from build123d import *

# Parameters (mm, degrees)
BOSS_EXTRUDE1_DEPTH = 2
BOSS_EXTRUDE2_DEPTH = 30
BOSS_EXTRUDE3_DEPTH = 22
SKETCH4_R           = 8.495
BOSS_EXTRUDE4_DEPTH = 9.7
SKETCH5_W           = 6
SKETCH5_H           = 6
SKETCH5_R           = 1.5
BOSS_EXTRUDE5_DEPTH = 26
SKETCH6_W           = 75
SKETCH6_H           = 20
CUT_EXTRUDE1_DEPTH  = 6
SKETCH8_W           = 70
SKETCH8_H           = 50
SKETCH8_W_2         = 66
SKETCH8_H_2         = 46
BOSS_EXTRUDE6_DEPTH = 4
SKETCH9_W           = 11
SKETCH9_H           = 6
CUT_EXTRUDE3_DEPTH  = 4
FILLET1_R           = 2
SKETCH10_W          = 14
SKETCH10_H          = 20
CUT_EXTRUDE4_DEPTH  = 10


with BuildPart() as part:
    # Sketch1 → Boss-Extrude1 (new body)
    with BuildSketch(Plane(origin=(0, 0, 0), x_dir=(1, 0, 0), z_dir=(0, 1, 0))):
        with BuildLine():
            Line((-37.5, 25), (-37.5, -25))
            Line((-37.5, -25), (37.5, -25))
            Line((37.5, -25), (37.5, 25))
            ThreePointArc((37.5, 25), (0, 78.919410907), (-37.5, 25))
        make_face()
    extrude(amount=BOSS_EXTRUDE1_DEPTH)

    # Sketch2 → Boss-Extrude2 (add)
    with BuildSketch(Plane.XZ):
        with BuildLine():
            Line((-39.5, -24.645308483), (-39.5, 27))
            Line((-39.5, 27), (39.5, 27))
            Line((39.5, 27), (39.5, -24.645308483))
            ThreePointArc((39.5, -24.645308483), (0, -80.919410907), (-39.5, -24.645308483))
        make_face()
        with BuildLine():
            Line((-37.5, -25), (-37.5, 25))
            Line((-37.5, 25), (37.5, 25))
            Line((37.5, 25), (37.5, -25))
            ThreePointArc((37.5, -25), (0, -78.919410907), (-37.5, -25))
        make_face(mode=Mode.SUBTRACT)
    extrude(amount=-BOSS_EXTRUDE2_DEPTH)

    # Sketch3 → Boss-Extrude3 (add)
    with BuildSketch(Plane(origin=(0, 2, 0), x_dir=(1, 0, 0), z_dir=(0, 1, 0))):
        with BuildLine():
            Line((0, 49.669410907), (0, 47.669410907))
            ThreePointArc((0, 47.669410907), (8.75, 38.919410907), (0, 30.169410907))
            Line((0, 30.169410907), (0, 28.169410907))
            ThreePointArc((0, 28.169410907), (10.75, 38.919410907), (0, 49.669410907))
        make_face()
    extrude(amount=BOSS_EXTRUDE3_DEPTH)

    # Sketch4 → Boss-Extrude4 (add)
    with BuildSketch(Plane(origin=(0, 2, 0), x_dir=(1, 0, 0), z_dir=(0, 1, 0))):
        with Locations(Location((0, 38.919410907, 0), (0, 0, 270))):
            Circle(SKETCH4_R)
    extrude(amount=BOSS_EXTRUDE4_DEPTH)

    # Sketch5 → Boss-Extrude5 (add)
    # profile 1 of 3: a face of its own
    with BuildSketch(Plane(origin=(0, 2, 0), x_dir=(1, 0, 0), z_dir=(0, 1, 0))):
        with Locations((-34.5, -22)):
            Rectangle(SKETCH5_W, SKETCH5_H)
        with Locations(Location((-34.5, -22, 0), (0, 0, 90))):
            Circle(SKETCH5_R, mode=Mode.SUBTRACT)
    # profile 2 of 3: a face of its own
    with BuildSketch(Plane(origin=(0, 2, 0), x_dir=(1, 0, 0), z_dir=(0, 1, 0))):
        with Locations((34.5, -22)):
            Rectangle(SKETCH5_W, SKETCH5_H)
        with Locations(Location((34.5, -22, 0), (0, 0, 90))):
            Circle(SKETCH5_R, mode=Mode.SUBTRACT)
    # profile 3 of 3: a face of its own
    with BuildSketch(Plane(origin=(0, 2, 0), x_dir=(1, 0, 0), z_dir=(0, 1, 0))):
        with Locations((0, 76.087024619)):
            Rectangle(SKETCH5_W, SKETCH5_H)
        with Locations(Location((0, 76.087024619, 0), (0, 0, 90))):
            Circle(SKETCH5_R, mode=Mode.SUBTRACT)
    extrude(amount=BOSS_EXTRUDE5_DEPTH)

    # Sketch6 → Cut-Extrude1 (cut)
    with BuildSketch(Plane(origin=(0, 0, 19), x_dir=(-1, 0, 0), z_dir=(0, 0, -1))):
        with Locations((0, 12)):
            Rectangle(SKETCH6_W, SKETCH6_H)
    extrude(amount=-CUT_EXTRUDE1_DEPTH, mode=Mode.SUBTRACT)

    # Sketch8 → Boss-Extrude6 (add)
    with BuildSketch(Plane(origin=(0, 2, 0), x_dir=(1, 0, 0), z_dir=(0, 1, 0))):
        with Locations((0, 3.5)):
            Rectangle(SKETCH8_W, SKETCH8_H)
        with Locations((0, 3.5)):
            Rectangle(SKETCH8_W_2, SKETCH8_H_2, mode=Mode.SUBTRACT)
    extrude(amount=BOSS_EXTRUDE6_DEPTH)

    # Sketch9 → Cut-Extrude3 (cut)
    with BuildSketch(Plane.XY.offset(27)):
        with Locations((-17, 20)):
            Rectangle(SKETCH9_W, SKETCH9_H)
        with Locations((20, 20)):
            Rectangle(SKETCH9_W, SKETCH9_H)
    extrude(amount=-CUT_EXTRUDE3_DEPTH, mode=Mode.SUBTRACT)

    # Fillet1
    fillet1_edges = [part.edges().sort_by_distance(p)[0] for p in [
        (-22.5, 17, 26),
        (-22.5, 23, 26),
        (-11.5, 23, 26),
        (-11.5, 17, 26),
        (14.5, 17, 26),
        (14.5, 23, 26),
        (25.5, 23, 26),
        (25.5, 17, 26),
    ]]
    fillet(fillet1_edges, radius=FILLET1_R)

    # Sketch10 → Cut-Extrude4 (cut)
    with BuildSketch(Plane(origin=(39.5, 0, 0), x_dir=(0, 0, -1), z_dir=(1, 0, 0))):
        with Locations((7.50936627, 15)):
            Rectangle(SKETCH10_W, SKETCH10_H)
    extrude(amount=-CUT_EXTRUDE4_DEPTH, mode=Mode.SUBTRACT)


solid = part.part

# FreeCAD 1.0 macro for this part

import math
import FreeCAD as App
import Part
import Sketcher
Q = App.Units.Quantity


def edges_at(feature, points):
    """Names of the edges that pass closest to the given points."""
    edges = feature.Shape.Edges
    near = lambda p: min(range(len(edges)), key=lambda i: edges[i].distToShape(Part.Vertex(*p))[0])
    return sorted({f"Edge{near(p) + 1}" for p in points})

doc = App.newDocument("Part")
body = doc.addObject("PartDesign::Body", "Body")

# Sketch on XZ plane
sketch1 = doc.addObject("Sketcher::SketchObject", "Sketch")
body.addObject(sketch1)
sketch1.AttachmentSupport = (doc.XZ_Plane, [""])
sketch1.MapMode = "FlatFace"
sketch1.addGeometry(Part.LineSegment(App.Vector(-38, -25, 0), App.Vector(-38, 25, 0)), False)
sketch1.addGeometry(Part.LineSegment(App.Vector(-38, 25, 0), App.Vector(38, 25, 0)), False)
sketch1.addGeometry(Part.LineSegment(App.Vector(38, 25, 0), App.Vector(38, -25, 0)), False)
sketch1.addGeometry(Part.ArcOfCircle(Part.Circle(App.Vector(0, -39, 0), App.Vector(0, 0, 1), 40), math.radians(160), math.radians(380)), False)
sketch1.addConstraint(Sketcher.Constraint("Coincident", 0, 2, 1, 1))
sketch1.addConstraint(Sketcher.Constraint("Coincident", 1, 2, 2, 1))
sketch1.addConstraint(Sketcher.Constraint("Coincident", 2, 2, 3, 2))
sketch1.addConstraint(Sketcher.Constraint("Coincident", 3, 1, 0, 1))
sketch1.addConstraint(Sketcher.Constraint("Vertical", 0))
sketch1.addConstraint(Sketcher.Constraint("Horizontal", 1))
sketch1.addConstraint(Sketcher.Constraint("Vertical", 2))
sketch1.addConstraint(Sketcher.Constraint("Symmetric", 0, 2, 2, 2, -1, 1))
sketch1.addConstraint(Sketcher.Constraint("PointOnObject", 3, 3, -2))
sketch1.addConstraint(Sketcher.Constraint("Radius", 3, Q("40 mm")))
sketch1.addConstraint(Sketcher.Constraint("DistanceX", 1, 1, 1, 2, Q("75 mm")))
sketch1.addConstraint(Sketcher.Constraint("DistanceY", 0, 1, 0, 2, Q("50 mm")))
pad1 = doc.addObject("PartDesign::Pad", "Pad")
body.addObject(pad1)
pad1.Profile = sketch1
pad1.Length = 2
pad1.Reversed = True

# Sketch on XZ plane
sketch2 = doc.addObject("Sketcher::SketchObject", "Sketch001")
body.addObject(sketch2)
sketch2.AttachmentSupport = (doc.XZ_Plane, [""])
sketch2.MapMode = "FlatFace"
sketch2.addGeometry(Part.LineSegment(App.Vector(-40, 27, 0), App.Vector(-40, -25, 0)), False)
sketch2.addGeometry(Part.ArcOfCircle(Part.Circle(App.Vector(0, -39, 0), App.Vector(0, 0, 1), 42), math.radians(160), math.radians(380)), False)
sketch2.addGeometry(Part.LineSegment(App.Vector(40, -25, 0), App.Vector(40, 27, 0)), False)
sketch2.addGeometry(Part.LineSegment(App.Vector(40, 27, 0), App.Vector(-40, 27, 0)), False)
sketch2.addGeometry(Part.LineSegment(App.Vector(-38, -25, 0), App.Vector(-38, 25, 0)), False)
sketch2.addGeometry(Part.LineSegment(App.Vector(-38, 25, 0), App.Vector(38, 25, 0)), False)
sketch2.addGeometry(Part.LineSegment(App.Vector(38, 25, 0), App.Vector(38, -25, 0)), False)
sketch2.addGeometry(Part.ArcOfCircle(Part.Circle(App.Vector(0, -39, 0), App.Vector(0, 0, 1), 40), math.radians(160), math.radians(380)), False)
sketch2.addConstraint(Sketcher.Constraint("Coincident", 0, 2, 1, 1))
sketch2.addConstraint(Sketcher.Constraint("Coincident", 1, 2, 2, 1))
sketch2.addConstraint(Sketcher.Constraint("Coincident", 2, 2, 3, 1))
sketch2.addConstraint(Sketcher.Constraint("Coincident", 3, 2, 0, 1))
sketch2.addConstraint(Sketcher.Constraint("Coincident", 4, 2, 5, 1))
sketch2.addConstraint(Sketcher.Constraint("Coincident", 5, 2, 6, 1))
sketch2.addConstraint(Sketcher.Constraint("Coincident", 6, 2, 7, 2))
sketch2.addConstraint(Sketcher.Constraint("Coincident", 7, 1, 4, 1))
sketch2.addConstraint(Sketcher.Constraint("Vertical", 0))
sketch2.addConstraint(Sketcher.Constraint("Vertical", 2))
sketch2.addConstraint(Sketcher.Constraint("Horizontal", 3))
sketch2.addConstraint(Sketcher.Constraint("Vertical", 4))
sketch2.addConstraint(Sketcher.Constraint("Horizontal", 5))
sketch2.addConstraint(Sketcher.Constraint("Vertical", 6))
sketch2.addConstraint(Sketcher.Constraint("Coincident", 7, 3, 1, 3))
sketch2.addConstraint(Sketcher.Constraint("Symmetric", 4, 2, 6, 2, -1, 1))
sketch2.addConstraint(Sketcher.Constraint("Symmetric", 0, 2, 1, 2, -2))
sketch2.addConstraint(Sketcher.Constraint("Radius", 1, Q("42 mm")))
sketch2.addConstraint(Sketcher.Constraint("Radius", 7, Q("40 mm")))
sketch2.addConstraint(Sketcher.Constraint("DistanceX", 3, 2, 3, 1, Q("79 mm")))
sketch2.addConstraint(Sketcher.Constraint("DistanceX", 5, 1, 5, 2, Q("75 mm")))
sketch2.addConstraint(Sketcher.Constraint("DistanceY", 4, 1, 4, 2, Q("50 mm")))
sketch2.addConstraint(Sketcher.Constraint("DistanceY", -1, 1, 2, 2, Q("27 mm")))
pad2 = doc.addObject("PartDesign::Pad", "Pad001")
body.addObject(pad2)
pad2.Profile = sketch2
pad2.Length = 30
pad2.Reversed = True

# Sketch on XZ plane
sketch3 = doc.addObject("Sketcher::SketchObject", "Sketch002")
body.addObject(sketch3)
sketch3.AttachmentSupport = (doc.XZ_Plane, [""])
sketch3.MapMode = "FlatFace"
sketch3.AttachmentOffset = App.Placement(App.Vector(0, 0, -2), App.Rotation())
sketch3.addGeometry(Part.LineSegment(App.Vector(0, -49.7, 0), App.Vector(0, -47.7, 0)), False)
sketch3.addGeometry(Part.ArcOfCircle(Part.Circle(App.Vector(0, -38.9, 0), App.Vector(0, 0, 1), 8.8), math.radians(-90), math.radians(90)), False)
sketch3.addGeometry(Part.LineSegment(App.Vector(0, -30.2, 0), App.Vector(0, -28.2, 0)), False)
sketch3.addGeometry(Part.ArcOfCircle(Part.Circle(App.Vector(0, -38.9, 0), App.Vector(0, 0, 1), 10.8), math.radians(-90), math.radians(90)), False)
sketch3.addConstraint(Sketcher.Constraint("Coincident", 0, 2, 1, 1))
sketch3.addConstraint(Sketcher.Constraint("Coincident", 1, 2, 2, 1))
sketch3.addConstraint(Sketcher.Constraint("Coincident", 2, 2, 3, 2))
sketch3.addConstraint(Sketcher.Constraint("Coincident", 3, 1, 0, 1))
sketch3.addConstraint(Sketcher.Constraint("Vertical", 0))
sketch3.addConstraint(Sketcher.Constraint("Vertical", 2))
sketch3.addConstraint(Sketcher.Constraint("Coincident", 3, 3, 1, 3))
sketch3.addConstraint(Sketcher.Constraint("PointOnObject", 1, 3, -2))
sketch3.addConstraint(Sketcher.Constraint("PointOnObject", 0, 2, -2))
sketch3.addConstraint(Sketcher.Constraint("PointOnObject", 1, 2, -2))
sketch3.addConstraint(Sketcher.Constraint("DistanceY", 0, 1, 0, 2, Q("2 mm")))
sketch3.addConstraint(Sketcher.Constraint("Radius", 1, Q("8.75 mm")))
sketch3.addConstraint(Sketcher.Constraint("DistanceY", 1, 3, -1, 1, Q("38.919411 mm")))
pad3 = doc.addObject("PartDesign::Pad", "Pad002")
body.addObject(pad3)
pad3.Profile = sketch3
pad3.Length = 22
pad3.Reversed = True

# Sketch on XZ plane
sketch4 = doc.addObject("Sketcher::SketchObject", "Sketch003")
body.addObject(sketch4)
sketch4.AttachmentSupport = (doc.XZ_Plane, [""])
sketch4.MapMode = "FlatFace"
sketch4.AttachmentOffset = App.Placement(App.Vector(0, 0, -2), App.Rotation())
sketch4.addGeometry(Part.Circle(App.Vector(0, -39, 0), App.Vector(0, 0, 1), 8), False)
sketch4.addConstraint(Sketcher.Constraint("PointOnObject", 0, 3, -2))
sketch4.addConstraint(Sketcher.Constraint("Diameter", 0, Q("16.99 mm")))
sketch4.addConstraint(Sketcher.Constraint("DistanceY", 0, 3, -1, 1, Q("38.919411 mm")))
pad4 = doc.addObject("PartDesign::Pad", "Pad003")
body.addObject(pad4)
pad4.Profile = sketch4
pad4.Length = 9.7
pad4.Reversed = True

# Sketch on XZ plane
sketch5 = doc.addObject("Sketcher::SketchObject", "Sketch004")
body.addObject(sketch5)
sketch5.AttachmentSupport = (doc.XZ_Plane, [""])
sketch5.MapMode = "FlatFace"
sketch5.AttachmentOffset = App.Placement(App.Vector(0, 0, -2), App.Rotation())
sketch5.addGeometry(Part.LineSegment(App.Vector(-37.5, 19, 0), App.Vector(-37.5, 25, 0)), False)
sketch5.addGeometry(Part.LineSegment(App.Vector(-37.5, 25, 0), App.Vector(-31.5, 25, 0)), False)
sketch5.addGeometry(Part.LineSegment(App.Vector(-31.5, 25, 0), App.Vector(-31.5, 19, 0)), False)
sketch5.addGeometry(Part.LineSegment(App.Vector(-31.5, 19, 0), App.Vector(-37.5, 19, 0)), False)
sketch5.addGeometry(Part.Circle(App.Vector(-34.5, 22, 0), App.Vector(0, 0, 1), 1.5), False)
sketch5.addGeometry(Part.LineSegment(App.Vector(31.5, 19, 0), App.Vector(31.5, 25, 0)), False)
sketch5.addGeometry(Part.LineSegment(App.Vector(31.5, 25, 0), App.Vector(37.5, 25, 0)), False)
sketch5.addGeometry(Part.LineSegment(App.Vector(37.5, 25, 0), App.Vector(37.5, 19, 0)), False)
sketch5.addGeometry(Part.LineSegment(App.Vector(37.5, 19, 0), App.Vector(31.5, 19, 0)), False)
sketch5.addGeometry(Part.Circle(App.Vector(34.5, 22, 0), App.Vector(0, 0, 1), 1.5), False)
sketch5.addGeometry(Part.LineSegment(App.Vector(-3, -79.1, 0), App.Vector(-3, -73.1, 0)), False)
sketch5.addGeometry(Part.LineSegment(App.Vector(-3, -73.1, 0), App.Vector(3, -73.1, 0)), False)
sketch5.addGeometry(Part.LineSegment(App.Vector(3, -73.1, 0), App.Vector(3, -79.1, 0)), False)
sketch5.addGeometry(Part.LineSegment(App.Vector(3, -79.1, 0), App.Vector(-3, -79.1, 0)), False)
sketch5.addGeometry(Part.Circle(App.Vector(0, -76.1, 0), App.Vector(0, 0, 1), 1.5), False)
sketch5.addConstraint(Sketcher.Constraint("Coincident", 0, 2, 1, 1))
sketch5.addConstraint(Sketcher.Constraint("Coincident", 1, 2, 2, 1))
sketch5.addConstraint(Sketcher.Constraint("Coincident", 2, 2, 3, 1))
sketch5.addConstraint(Sketcher.Constraint("Coincident", 3, 2, 0, 1))
sketch5.addConstraint(Sketcher.Constraint("Coincident", 5, 2, 6, 1))
sketch5.addConstraint(Sketcher.Constraint("Coincident", 6, 2, 7, 1))
sketch5.addConstraint(Sketcher.Constraint("Coincident", 7, 2, 8, 1))
sketch5.addConstraint(Sketcher.Constraint("Coincident", 8, 2, 5, 1))
sketch5.addConstraint(Sketcher.Constraint("Coincident", 10, 2, 11, 1))
sketch5.addConstraint(Sketcher.Constraint("Coincident", 11, 2, 12, 1))
sketch5.addConstraint(Sketcher.Constraint("Coincident", 12, 2, 13, 1))
sketch5.addConstraint(Sketcher.Constraint("Coincident", 13, 2, 10, 1))
sketch5.addConstraint(Sketcher.Constraint("Vertical", 0))
sketch5.addConstraint(Sketcher.Constraint("Horizontal", 1))
sketch5.addConstraint(Sketcher.Constraint("Vertical", 2))
sketch5.addConstraint(Sketcher.Constraint("Horizontal", 3))
sketch5.addConstraint(Sketcher.Constraint("Vertical", 5))
sketch5.addConstraint(Sketcher.Constraint("Horizontal", 6))
sketch5.addConstraint(Sketcher.Constraint("Vertical", 7))
sketch5.addConstraint(Sketcher.Constraint("Horizontal", 8))
sketch5.addConstraint(Sketcher.Constraint("Vertical", 10))
sketch5.addConstraint(Sketcher.Constraint("Horizontal", 11))
sketch5.addConstraint(Sketcher.Constraint("Vertical", 12))
sketch5.addConstraint(Sketcher.Constraint("Horizontal", 13))
sketch5.addConstraint(Sketcher.Constraint("Equal", 4, 9))
sketch5.addConstraint(Sketcher.Constraint("Equal", 9, 14))
sketch5.addConstraint(Sketcher.Constraint("Symmetric", 4, 3, 9, 3, -2))
sketch5.addConstraint(Sketcher.Constraint("Symmetric", 1, 2, 5, 2, -2))
sketch5.addConstraint(Sketcher.Constraint("Symmetric", 3, 2, 7, 2, -2))
sketch5.addConstraint(Sketcher.Constraint("PointOnObject", 14, 3, -2))
sketch5.addConstraint(Sketcher.Constraint("Equal", 8, 11))
sketch5.addConstraint(Sketcher.Constraint("Equal", 13, 0))
sketch5.addConstraint(Sketcher.Constraint("Equal", 7, 10))
sketch5.addConstraint(Sketcher.Constraint("Diameter", 4, Q("3 mm")))
sketch5.addConstraint(Sketcher.Constraint("DistanceX", 1, 1, 1, 2, Q("6 mm")))
sketch5.addConstraint(Sketcher.Constraint("DistanceY", -1, 1, 4, 3, Q("22 mm")))
sketch5.addConstraint(Sketcher.Constraint("DistanceY", -1, 1, 0, 2, Q("25 mm")))
sketch5.addConstraint(Sketcher.Constraint("DistanceX", 10, 2, -1, 1, Q("3 mm")))
sketch5.addConstraint(Sketcher.Constraint("DistanceX", 4, 3, 9, 3, Q("69 mm")))
sketch5.addConstraint(Sketcher.Constraint("DistanceX", 0, 2, 4, 3, Q("3 mm")))
sketch5.addConstraint(Sketcher.Constraint("DistanceY", 14, 3, 10, 2, Q("3 mm")))
sketch5.addConstraint(Sketcher.Constraint("DistanceY", 14, 3, -1, 1, Q("76.087025 mm")))
pad5 = doc.addObject("PartDesign::Pad", "Pad004")
body.addObject(pad5)
pad5.Profile = sketch5
pad5.Length = 26
pad5.Reversed = True

# Sketch on XY plane
sketch6 = doc.addObject("Sketcher::SketchObject", "Sketch005")
body.addObject(sketch6)
sketch6.AttachmentSupport = (doc.XY_Plane, [""])
sketch6.MapMode = "FlatFace"
sketch6.AttachmentOffset = App.Placement(App.Vector(0, 0, 19), App.Rotation())
sketch6.addGeometry(Part.LineSegment(App.Vector(38, 22, 0), App.Vector(38, 2, 0)), False)
sketch6.addGeometry(Part.LineSegment(App.Vector(38, 2, 0), App.Vector(-38, 2, 0)), False)
sketch6.addGeometry(Part.LineSegment(App.Vector(-38, 2, 0), App.Vector(-38, 22, 0)), False)
sketch6.addGeometry(Part.LineSegment(App.Vector(-38, 22, 0), App.Vector(38, 22, 0)), False)
sketch6.addConstraint(Sketcher.Constraint("Coincident", 0, 2, 1, 1))
sketch6.addConstraint(Sketcher.Constraint("Coincident", 1, 2, 2, 1))
sketch6.addConstraint(Sketcher.Constraint("Coincident", 2, 2, 3, 1))
sketch6.addConstraint(Sketcher.Constraint("Coincident", 3, 2, 0, 1))
sketch6.addConstraint(Sketcher.Constraint("Vertical", 0))
sketch6.addConstraint(Sketcher.Constraint("Horizontal", 1))
sketch6.addConstraint(Sketcher.Constraint("Vertical", 2))
sketch6.addConstraint(Sketcher.Constraint("Horizontal", 3))
sketch6.addConstraint(Sketcher.Constraint("DistanceX", 1, 2, 1, 1, Q("75 mm")))
sketch6.addConstraint(Sketcher.Constraint("DistanceY", 0, 2, 0, 1, Q("20 mm")))
sketch6.addConstraint(Sketcher.Constraint("DistanceY", -1, 1, 0, 2, Q("2 mm")))
sketch6.addConstraint(Sketcher.Constraint("DistanceX", -1, 1, 0, 2, Q("37.5 mm")))
pocket1 = doc.addObject("PartDesign::Pocket", "Pocket")
body.addObject(pocket1)
pocket1.Profile = sketch6
pocket1.Length = 6
pocket1.Reversed = True

# Sketch on XZ plane
sketch7 = doc.addObject("Sketcher::SketchObject", "Sketch006")
body.addObject(sketch7)
sketch7.AttachmentSupport = (doc.XZ_Plane, [""])
sketch7.MapMode = "FlatFace"
sketch7.AttachmentOffset = App.Placement(App.Vector(0, 0, -2), App.Rotation())
sketch7.addGeometry(Part.LineSegment(App.Vector(-35, -28, 0), App.Vector(-35, 22, 0)), False)
sketch7.addGeometry(Part.LineSegment(App.Vector(-35, 22, 0), App.Vector(35, 22, 0)), False)
sketch7.addGeometry(Part.LineSegment(App.Vector(35, 22, 0), App.Vector(35, -28, 0)), False)
sketch7.addGeometry(Part.LineSegment(App.Vector(35, -28, 0), App.Vector(-35, -28, 0)), False)
sketch7.addGeometry(Part.LineSegment(App.Vector(33, 20, 0), App.Vector(-33, 20, 0)), False)
sketch7.addGeometry(Part.LineSegment(App.Vector(-33, 20, 0), App.Vector(-33, -26, 0)), False)
sketch7.addGeometry(Part.LineSegment(App.Vector(-33, -26, 0), App.Vector(33, -26, 0)), False)
sketch7.addGeometry(Part.LineSegment(App.Vector(33, -26, 0), App.Vector(33, 20, 0)), False)
sketch7.addConstraint(Sketcher.Constraint("Coincident", 0, 2, 1, 1))
sketch7.addConstraint(Sketcher.Constraint("Coincident", 1, 2, 2, 1))
sketch7.addConstraint(Sketcher.Constraint("Coincident", 2, 2, 3, 1))
sketch7.addConstraint(Sketcher.Constraint("Coincident", 3, 2, 0, 1))
sketch7.addConstraint(Sketcher.Constraint("Coincident", 4, 2, 5, 1))
sketch7.addConstraint(Sketcher.Constraint("Coincident", 5, 2, 6, 1))
sketch7.addConstraint(Sketcher.Constraint("Coincident", 6, 2, 7, 1))
sketch7.addConstraint(Sketcher.Constraint("Coincident", 7, 2, 4, 1))
sketch7.addConstraint(Sketcher.Constraint("Vertical", 0))
sketch7.addConstraint(Sketcher.Constraint("Horizontal", 1))
sketch7.addConstraint(Sketcher.Constraint("Vertical", 2))
sketch7.addConstraint(Sketcher.Constraint("Horizontal", 3))
sketch7.addConstraint(Sketcher.Constraint("Horizontal", 4))
sketch7.addConstraint(Sketcher.Constraint("Vertical", 5))
sketch7.addConstraint(Sketcher.Constraint("Horizontal", 6))
sketch7.addConstraint(Sketcher.Constraint("Vertical", 7))
sketch7.addConstraint(Sketcher.Constraint("DistanceX", 1, 1, 1, 2, Q("70 mm")))
sketch7.addConstraint(Sketcher.Constraint("DistanceX", 4, 2, 4, 1, Q("66 mm")))
sketch7.addConstraint(Sketcher.Constraint("DistanceY", 0, 1, 0, 2, Q("50 mm")))
sketch7.addConstraint(Sketcher.Constraint("DistanceY", 5, 2, 5, 1, Q("46 mm")))
sketch7.addConstraint(Sketcher.Constraint("DistanceX", 0, 2, -1, 1, Q("35 mm")))
sketch7.addConstraint(Sketcher.Constraint("DistanceX", 4, 2, -1, 1, Q("33 mm")))
sketch7.addConstraint(Sketcher.Constraint("DistanceY", 4, 2, 0, 2, Q("2 mm")))
sketch7.addConstraint(Sketcher.Constraint("DistanceY", -1, 1, 0, 2, Q("21.5 mm")))
pad6 = doc.addObject("PartDesign::Pad", "Pad005")
body.addObject(pad6)
pad6.Profile = sketch7
pad6.Length = 4
pad6.Reversed = True

# Sketch on XY plane
sketch8 = doc.addObject("Sketcher::SketchObject", "Sketch007")
body.addObject(sketch8)
sketch8.AttachmentSupport = (doc.XY_Plane, [""])
sketch8.MapMode = "FlatFace"
sketch8.AttachmentOffset = App.Placement(App.Vector(0, 0, 27), App.Rotation())
sketch8.addGeometry(Part.LineSegment(App.Vector(-22, 23, 0), App.Vector(-22, 17, 0)), False)
sketch8.addGeometry(Part.LineSegment(App.Vector(-22, 17, 0), App.Vector(-12, 17, 0)), False)
sketch8.addGeometry(Part.LineSegment(App.Vector(-12, 17, 0), App.Vector(-12, 23, 0)), False)
sketch8.addGeometry(Part.LineSegment(App.Vector(-12, 23, 0), App.Vector(-22, 23, 0)), False)
sketch8.addGeometry(Part.LineSegment(App.Vector(14, 23, 0), App.Vector(14, 17, 0)), False)
sketch8.addGeometry(Part.LineSegment(App.Vector(14, 17, 0), App.Vector(26, 17, 0)), False)
sketch8.addGeometry(Part.LineSegment(App.Vector(26, 17, 0), App.Vector(26, 23, 0)), False)
sketch8.addGeometry(Part.LineSegment(App.Vector(26, 23, 0), App.Vector(14, 23, 0)), False)
sketch8.addConstraint(Sketcher.Constraint("Coincident", 0, 2, 1, 1))
sketch8.addConstraint(Sketcher.Constraint("Coincident", 1, 2, 2, 1))
sketch8.addConstraint(Sketcher.Constraint("Coincident", 2, 2, 3, 1))
sketch8.addConstraint(Sketcher.Constraint("Coincident", 3, 2, 0, 1))
sketch8.addConstraint(Sketcher.Constraint("Coincident", 4, 2, 5, 1))
sketch8.addConstraint(Sketcher.Constraint("Coincident", 5, 2, 6, 1))
sketch8.addConstraint(Sketcher.Constraint("Coincident", 6, 2, 7, 1))
sketch8.addConstraint(Sketcher.Constraint("Coincident", 7, 2, 4, 1))
sketch8.addConstraint(Sketcher.Constraint("Vertical", 0))
sketch8.addConstraint(Sketcher.Constraint("Horizontal", 1))
sketch8.addConstraint(Sketcher.Constraint("Vertical", 2))
sketch8.addConstraint(Sketcher.Constraint("Horizontal", 3))
sketch8.addConstraint(Sketcher.Constraint("Vertical", 4))
sketch8.addConstraint(Sketcher.Constraint("Horizontal", 5))
sketch8.addConstraint(Sketcher.Constraint("Vertical", 6))
sketch8.addConstraint(Sketcher.Constraint("Horizontal", 7))
sketch8.addConstraint(Sketcher.Constraint("Horizontal", 1, 2, 4, 2))
sketch8.addConstraint(Sketcher.Constraint("Horizontal", 3, 2, 6, 2))
sketch8.addConstraint(Sketcher.Constraint("Equal", 3, 5))
sketch8.addConstraint(Sketcher.Constraint("DistanceX", 1, 1, 1, 2, Q("11 mm")))
sketch8.addConstraint(Sketcher.Constraint("DistanceY", 0, 2, 0, 1, Q("6 mm")))
sketch8.addConstraint(Sketcher.Constraint("DistanceY", -1, 1, 0, 2, Q("17 mm")))
sketch8.addConstraint(Sketcher.Constraint("DistanceX", 1, 2, 4, 2, Q("26 mm")))
sketch8.addConstraint(Sketcher.Constraint("DistanceX", 0, 2, -1, 1, Q("22.5 mm")))
pocket2 = doc.addObject("PartDesign::Pocket", "Pocket001")
body.addObject(pocket2)
pocket2.Profile = sketch8
pocket2.Length = 4
doc.recompute()

fillet = doc.addObject("PartDesign::Fillet", "Fillet")
body.addObject(fillet)
fillet.Base = (pocket2, edges_at(pocket2, [
    (-22.5, 17, 26),
    (-22.5, 23, 26),
    (-11.5, 23, 26),
    (-11.5, 17, 26),
    (14.5, 17, 26),
    (14.5, 23, 26),
    (25.5, 23, 26),
    (25.5, 17, 26),
]))
fillet.Radius = 2

# Sketch on YZ plane
sketch9 = doc.addObject("Sketcher::SketchObject", "Sketch008")
body.addObject(sketch9)
sketch9.AttachmentSupport = (doc.YZ_Plane, [""])
sketch9.MapMode = "FlatFace"
sketch9.AttachmentOffset = App.Placement(App.Vector(0, 0, 39.5), App.Rotation())
sketch9.addGeometry(Part.LineSegment(App.Vector(25, -1, 0), App.Vector(5, -1, 0)), False)
sketch9.addGeometry(Part.LineSegment(App.Vector(5, -1, 0), App.Vector(5, -15, 0)), False)
sketch9.addGeometry(Part.LineSegment(App.Vector(5, -15, 0), App.Vector(25, -15, 0)), False)
sketch9.addGeometry(Part.LineSegment(App.Vector(25, -15, 0), App.Vector(25, -1, 0)), False)
sketch9.addConstraint(Sketcher.Constraint("Coincident", 0, 2, 1, 1))
sketch9.addConstraint(Sketcher.Constraint("Coincident", 1, 2, 2, 1))
sketch9.addConstraint(Sketcher.Constraint("Coincident", 2, 2, 3, 1))
sketch9.addConstraint(Sketcher.Constraint("Coincident", 3, 2, 0, 1))
sketch9.addConstraint(Sketcher.Constraint("Horizontal", 0))
sketch9.addConstraint(Sketcher.Constraint("Vertical", 1))
sketch9.addConstraint(Sketcher.Constraint("Horizontal", 2))
sketch9.addConstraint(Sketcher.Constraint("Vertical", 3))
sketch9.addConstraint(Sketcher.Constraint("DistanceX", 0, 2, 0, 1, Q("20 mm")))
sketch9.addConstraint(Sketcher.Constraint("DistanceY", 1, 2, 1, 1, Q("14 mm")))
sketch9.addConstraint(Sketcher.Constraint("DistanceX", -1, 1, 0, 2, Q("5 mm")))
sketch9.addConstraint(Sketcher.Constraint("DistanceY", 0, 2, -1, 1, Q("0.509366 mm")))
pocket3 = doc.addObject("PartDesign::Pocket", "Pocket002")
body.addObject(pocket3)
pocket3.Profile = sketch9
pocket3.Length = 10

doc.recompute()
